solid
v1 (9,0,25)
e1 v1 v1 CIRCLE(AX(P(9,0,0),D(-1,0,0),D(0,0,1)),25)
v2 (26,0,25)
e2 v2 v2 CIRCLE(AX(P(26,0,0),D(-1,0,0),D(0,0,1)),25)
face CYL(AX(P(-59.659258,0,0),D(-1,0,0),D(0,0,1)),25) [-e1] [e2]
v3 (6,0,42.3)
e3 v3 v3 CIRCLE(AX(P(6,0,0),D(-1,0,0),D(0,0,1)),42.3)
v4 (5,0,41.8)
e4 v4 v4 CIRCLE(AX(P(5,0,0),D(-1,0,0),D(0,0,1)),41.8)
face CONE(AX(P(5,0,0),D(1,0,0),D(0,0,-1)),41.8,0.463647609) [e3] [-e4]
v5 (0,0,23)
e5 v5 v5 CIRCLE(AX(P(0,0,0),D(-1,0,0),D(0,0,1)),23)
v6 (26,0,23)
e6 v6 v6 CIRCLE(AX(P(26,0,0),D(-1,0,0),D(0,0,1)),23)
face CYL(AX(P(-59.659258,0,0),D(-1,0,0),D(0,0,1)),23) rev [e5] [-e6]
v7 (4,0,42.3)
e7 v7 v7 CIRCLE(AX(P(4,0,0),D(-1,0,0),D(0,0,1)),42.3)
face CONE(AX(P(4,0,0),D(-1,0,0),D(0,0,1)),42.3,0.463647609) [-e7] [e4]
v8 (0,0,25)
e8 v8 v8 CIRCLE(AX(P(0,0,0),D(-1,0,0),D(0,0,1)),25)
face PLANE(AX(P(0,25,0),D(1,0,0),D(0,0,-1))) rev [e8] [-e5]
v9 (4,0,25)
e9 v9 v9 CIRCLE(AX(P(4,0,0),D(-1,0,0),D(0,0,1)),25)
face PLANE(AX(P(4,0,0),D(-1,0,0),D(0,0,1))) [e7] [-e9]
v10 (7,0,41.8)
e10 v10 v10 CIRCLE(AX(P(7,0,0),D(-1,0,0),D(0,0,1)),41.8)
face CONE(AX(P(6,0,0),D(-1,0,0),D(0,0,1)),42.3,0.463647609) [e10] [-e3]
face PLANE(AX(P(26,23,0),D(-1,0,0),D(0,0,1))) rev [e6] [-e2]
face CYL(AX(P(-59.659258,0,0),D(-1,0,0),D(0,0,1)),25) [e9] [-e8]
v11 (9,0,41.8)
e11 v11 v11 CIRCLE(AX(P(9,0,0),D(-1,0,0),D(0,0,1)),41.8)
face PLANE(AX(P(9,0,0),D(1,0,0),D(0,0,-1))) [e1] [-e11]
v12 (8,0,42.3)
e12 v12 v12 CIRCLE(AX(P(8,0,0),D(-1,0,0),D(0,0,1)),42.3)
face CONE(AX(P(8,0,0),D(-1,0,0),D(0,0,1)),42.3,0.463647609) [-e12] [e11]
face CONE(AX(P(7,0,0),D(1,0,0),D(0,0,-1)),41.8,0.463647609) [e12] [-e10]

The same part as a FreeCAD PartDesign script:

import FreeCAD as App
import Part
import Sketcher
from FreeCAD import Vector

doc = App.newDocument("Part")
body = doc.addObject("PartDesign::Body", "Body")

# Sketch on XY plane
sketch1 = body.newObject("Sketcher::SketchObject", "Sketch")
sketch1.AttachmentSupport = (doc.getObject("XY_Plane"), [""])
sketch1.MapMode = "FlatFace"
sketch1.addGeometry([
    Part.LineSegment(Vector(0, 25, 0), Vector(0, 23, 0)),  # 0
    Part.LineSegment(Vector(0, 23, 0), Vector(26, 23, 0)),  # 1
    Part.LineSegment(Vector(26, 23, 0), Vector(26, 25, 0)),  # 2
    Part.LineSegment(Vector(26, 25, 0), Vector(9, 25, 0)),  # 3
    Part.LineSegment(Vector(9, 25, 0), Vector(9, 41.8, 0)),  # 4
    Part.LineSegment(Vector(9, 41.8, 0), Vector(8, 42.3, 0)),  # 5
    Part.LineSegment(Vector(8, 42.3, 0), Vector(7, 41.8, 0)),  # 6
    Part.LineSegment(Vector(7, 41.8, 0), Vector(6, 42.3, 0)),  # 7
    Part.LineSegment(Vector(6, 42.3, 0), Vector(5, 41.8, 0)),  # 8
    Part.LineSegment(Vector(5, 41.8, 0), Vector(4, 42.3, 0)),  # 9
    Part.LineSegment(Vector(4, 42.3, 0), Vector(4, 25, 0)),  # 10
    Part.LineSegment(Vector(4, 25, 0), Vector(0, 25, 0)),  # 11
], False)
sketch1.addConstraint([
    Sketcher.Constraint("Coincident", 0, 2, 1, 1),
    Sketcher.Constraint("Coincident", 1, 2, 2, 1),
    Sketcher.Constraint("Coincident", 2, 2, 3, 1),
    Sketcher.Constraint("Coincident", 3, 2, 4, 1),
    Sketcher.Constraint("Coincident", 4, 2, 5, 1),
    Sketcher.Constraint("Coincident", 5, 2, 6, 1),
    Sketcher.Constraint("Coincident", 6, 2, 7, 1),
    Sketcher.Constraint("Coincident", 7, 2, 8, 1),
    Sketcher.Constraint("Coincident", 8, 2, 9, 1),
    Sketcher.Constraint("Coincident", 9, 2, 10, 1),
    Sketcher.Constraint("Coincident", 10, 2, 11, 1),
    Sketcher.Constraint("Coincident", 11, 2, 0, 1),
    Sketcher.Constraint("Vertical", 0),
    Sketcher.Constraint("Horizontal", 1),
    Sketcher.Constraint("Vertical", 2),
    Sketcher.Constraint("Horizontal", 3),
    Sketcher.Constraint("Vertical", 4),
    Sketcher.Constraint("Vertical", 10),
    Sketcher.Constraint("Horizontal", 11),
    Sketcher.Constraint("PointOnObject", 0, 2, -2),
    Sketcher.Constraint("Parallel", 5, 7),
    Sketcher.Constraint("Parallel", 6, 8),
    Sketcher.Constraint("Parallel", 7, 9),
    Sketcher.Constraint("Horizontal", 4, 2, 6, 2),
    Sketcher.Constraint("Horizontal", 5, 2, 7, 2),
    Sketcher.Constraint("Horizontal", 6, 2, 8, 2),
    Sketcher.Constraint("Horizontal", 7, 2, 9, 2),
    Sketcher.Constraint("Horizontal", 3, 2, 10, 2),
    Sketcher.Constraint("Equal", 5, 6),
    Sketcher.Constraint("DistanceX", 1, 1, 1, 2, 26.0),
    Sketcher.Constraint("DistanceX", 3, 2, 3, 1, 17.0),
    Sketcher.Constraint("DistanceX", 11, 2, 11, 1, 4.0),
    Sketcher.Constraint("DistanceY", 0, 2, 0, 1, 2.0),
    Sketcher.Constraint("DistanceY", 4, 1, 4, 2, 16.8),
    Sketcher.Constraint("DistanceY", 10, 2, 10, 1, 17.3),
    Sketcher.Constraint("DistanceY", -1, 1, 0, 2, 23.0),
])
revolution = body.newObject("PartDesign::Revolution", "Revolution")
revolution.Profile = sketch1
revolution.ReferenceAxis = (sketch1, ["H_Axis"])
revolution.Angle = 360

doc.recompute()
